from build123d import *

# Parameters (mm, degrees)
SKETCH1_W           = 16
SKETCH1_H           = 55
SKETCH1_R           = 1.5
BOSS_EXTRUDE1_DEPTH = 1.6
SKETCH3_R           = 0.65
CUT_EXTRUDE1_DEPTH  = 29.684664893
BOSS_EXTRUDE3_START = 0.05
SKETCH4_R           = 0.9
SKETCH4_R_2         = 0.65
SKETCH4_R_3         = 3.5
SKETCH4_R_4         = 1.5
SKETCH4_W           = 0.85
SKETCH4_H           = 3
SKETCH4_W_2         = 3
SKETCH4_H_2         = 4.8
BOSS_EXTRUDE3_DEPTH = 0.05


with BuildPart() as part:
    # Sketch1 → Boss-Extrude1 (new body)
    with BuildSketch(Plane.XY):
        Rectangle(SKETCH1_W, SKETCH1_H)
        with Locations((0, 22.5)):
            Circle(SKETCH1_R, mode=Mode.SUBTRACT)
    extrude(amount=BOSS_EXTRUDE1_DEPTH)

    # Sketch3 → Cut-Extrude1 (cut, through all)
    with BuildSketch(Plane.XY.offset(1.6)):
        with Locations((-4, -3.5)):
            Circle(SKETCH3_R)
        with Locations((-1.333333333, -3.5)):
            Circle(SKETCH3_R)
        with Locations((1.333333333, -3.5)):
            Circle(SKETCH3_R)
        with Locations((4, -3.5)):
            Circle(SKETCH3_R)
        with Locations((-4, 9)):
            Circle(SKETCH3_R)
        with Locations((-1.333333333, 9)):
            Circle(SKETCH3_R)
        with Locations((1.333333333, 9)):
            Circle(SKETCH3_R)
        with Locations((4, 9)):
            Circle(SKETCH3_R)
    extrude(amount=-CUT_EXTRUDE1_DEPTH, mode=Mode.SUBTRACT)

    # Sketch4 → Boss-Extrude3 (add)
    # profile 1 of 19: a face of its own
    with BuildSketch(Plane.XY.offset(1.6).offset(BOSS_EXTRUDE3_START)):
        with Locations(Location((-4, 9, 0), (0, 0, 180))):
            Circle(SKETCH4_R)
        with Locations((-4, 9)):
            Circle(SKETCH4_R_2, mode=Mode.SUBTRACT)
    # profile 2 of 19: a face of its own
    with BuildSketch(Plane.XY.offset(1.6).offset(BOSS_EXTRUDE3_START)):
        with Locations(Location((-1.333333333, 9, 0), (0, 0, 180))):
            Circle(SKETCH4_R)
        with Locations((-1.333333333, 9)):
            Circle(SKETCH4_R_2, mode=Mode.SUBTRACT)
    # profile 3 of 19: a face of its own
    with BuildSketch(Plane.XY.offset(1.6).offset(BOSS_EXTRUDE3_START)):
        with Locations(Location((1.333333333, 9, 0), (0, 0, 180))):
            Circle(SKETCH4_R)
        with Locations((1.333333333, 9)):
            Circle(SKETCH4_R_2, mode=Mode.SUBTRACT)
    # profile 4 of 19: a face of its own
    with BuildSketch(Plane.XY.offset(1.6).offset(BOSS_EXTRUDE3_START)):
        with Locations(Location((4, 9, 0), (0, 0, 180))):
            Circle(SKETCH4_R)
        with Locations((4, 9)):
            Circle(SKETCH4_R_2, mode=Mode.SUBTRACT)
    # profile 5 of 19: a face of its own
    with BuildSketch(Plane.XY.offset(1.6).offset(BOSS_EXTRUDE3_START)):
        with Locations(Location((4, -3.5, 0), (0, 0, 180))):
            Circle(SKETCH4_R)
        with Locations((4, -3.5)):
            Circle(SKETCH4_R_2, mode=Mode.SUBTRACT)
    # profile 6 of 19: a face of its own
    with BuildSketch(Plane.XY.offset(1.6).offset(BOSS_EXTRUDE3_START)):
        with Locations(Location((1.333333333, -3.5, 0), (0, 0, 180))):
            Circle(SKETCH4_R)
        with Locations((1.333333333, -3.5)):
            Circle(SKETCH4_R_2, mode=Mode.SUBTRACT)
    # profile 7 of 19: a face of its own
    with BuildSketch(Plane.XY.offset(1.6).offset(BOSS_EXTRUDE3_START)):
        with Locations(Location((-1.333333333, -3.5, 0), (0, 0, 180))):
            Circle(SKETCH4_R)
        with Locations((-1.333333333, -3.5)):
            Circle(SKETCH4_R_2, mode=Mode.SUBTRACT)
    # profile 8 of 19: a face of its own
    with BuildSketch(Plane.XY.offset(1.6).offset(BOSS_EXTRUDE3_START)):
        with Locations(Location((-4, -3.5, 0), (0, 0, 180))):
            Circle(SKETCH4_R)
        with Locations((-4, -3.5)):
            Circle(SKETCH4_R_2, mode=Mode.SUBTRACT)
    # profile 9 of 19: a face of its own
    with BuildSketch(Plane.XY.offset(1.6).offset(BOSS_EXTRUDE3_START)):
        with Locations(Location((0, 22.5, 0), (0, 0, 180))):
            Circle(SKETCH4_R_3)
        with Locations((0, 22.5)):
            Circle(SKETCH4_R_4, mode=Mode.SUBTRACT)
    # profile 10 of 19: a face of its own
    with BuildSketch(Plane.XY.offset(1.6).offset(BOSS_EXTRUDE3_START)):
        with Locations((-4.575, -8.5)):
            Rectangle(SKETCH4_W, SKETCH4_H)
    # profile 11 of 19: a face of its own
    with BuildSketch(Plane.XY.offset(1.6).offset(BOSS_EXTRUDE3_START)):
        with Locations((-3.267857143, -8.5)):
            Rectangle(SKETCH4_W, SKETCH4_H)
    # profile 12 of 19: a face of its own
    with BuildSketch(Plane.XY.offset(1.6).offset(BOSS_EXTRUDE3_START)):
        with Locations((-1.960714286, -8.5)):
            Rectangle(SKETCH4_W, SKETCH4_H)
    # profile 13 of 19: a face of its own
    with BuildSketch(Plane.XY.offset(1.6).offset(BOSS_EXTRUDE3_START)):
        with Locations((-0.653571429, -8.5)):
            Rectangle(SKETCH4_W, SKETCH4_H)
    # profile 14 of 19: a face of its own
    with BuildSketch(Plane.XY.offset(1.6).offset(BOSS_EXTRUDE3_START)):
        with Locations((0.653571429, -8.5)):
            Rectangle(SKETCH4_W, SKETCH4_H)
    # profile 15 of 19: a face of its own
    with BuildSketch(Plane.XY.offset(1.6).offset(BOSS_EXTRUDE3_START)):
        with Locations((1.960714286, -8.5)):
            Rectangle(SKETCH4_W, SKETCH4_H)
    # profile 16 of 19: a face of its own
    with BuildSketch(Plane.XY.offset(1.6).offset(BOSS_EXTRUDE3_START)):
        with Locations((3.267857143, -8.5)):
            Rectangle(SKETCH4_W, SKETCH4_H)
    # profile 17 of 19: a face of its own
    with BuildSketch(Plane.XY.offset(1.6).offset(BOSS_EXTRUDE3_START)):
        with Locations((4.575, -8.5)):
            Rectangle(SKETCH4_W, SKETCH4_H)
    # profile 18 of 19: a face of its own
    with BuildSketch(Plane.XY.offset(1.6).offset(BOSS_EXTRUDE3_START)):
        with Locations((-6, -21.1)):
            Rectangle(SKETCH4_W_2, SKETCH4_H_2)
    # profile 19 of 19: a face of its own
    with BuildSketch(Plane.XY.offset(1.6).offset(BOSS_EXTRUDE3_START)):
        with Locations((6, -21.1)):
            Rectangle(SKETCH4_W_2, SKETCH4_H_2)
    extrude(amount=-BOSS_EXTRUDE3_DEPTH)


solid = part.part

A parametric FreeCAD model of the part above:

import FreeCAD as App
import Part
import Sketcher
from FreeCAD import Vector
Q = App.Units.Quantity


def add_polygon(sketch, points):
    """Adds a closed chain of lines whose ends are joined by coincident constraints."""
    first, n = sketch.GeometryCount, len(points)
    for a, b in zip(points, points[1:] + points[:1]):
        sketch.addGeometry(Part.LineSegment(App.Vector(*a, 0), App.Vector(*b, 0)), False)
    for i in range(n):
        sketch.addConstraint(Sketcher.Constraint("Coincident", first + i, 2, first + (i + 1) % n, 1))

doc = App.newDocument("Part")
body = doc.addObject("PartDesign::Body", "Body")

# Sketch on XY plane
sketch1 = body.newObject("Sketcher::SketchObject", "Sketch")
sketch1.AttachmentSupport = (doc.getObject("XY_Plane"), [""])
sketch1.MapMode = "FlatFace"
add_polygon(sketch1, [(-8, 27.5), (-8, -27.5), (8, -27.5), (8, 27.5)])  # lines 0-3
sketch1.addGeometry(Part.Circle(Vector(0, 22.5, 0), Vector(0, 0, 1), 1.5), False)  # 4
sketch1.addConstraint([
    Sketcher.Constraint("Vertical", 0),
    Sketcher.Constraint("Horizontal", 1),
    Sketcher.Constraint("Vertical", 2),
    Sketcher.Constraint("Horizontal", 3),
    Sketcher.Constraint("Symmetric", 0, 2, 2, 2, -1, 1),
    Sketcher.Constraint("PointOnObject", 4, 3, -2),
    Sketcher.Constraint("Diameter", 4, Q("3 mm")),
    Sketcher.Constraint("DistanceX", 1, 1, 1, 2, Q("16 mm")),
    Sketcher.Constraint("DistanceY", 0, 2, 0, 1, Q("55 mm")),
    Sketcher.Constraint("DistanceY", 0, 2, 4, 3, Q("50 mm")),
])
pad1 = body.newObject("PartDesign::Pad", "Pad")
pad1.Profile = sketch1
pad1.Length = 1.6

# Sketch on XY plane
sketch2 = body.newObject("Sketcher::SketchObject", "Sketch001")
sketch2.AttachmentSupport = (doc.getObject("XY_Plane"), [""])
sketch2.MapMode = "FlatFace"
sketch2.AttachmentOffset = App.Placement(Vector(0, 0, 1.6), App.Rotation())
sketch2.addGeometry([
    Part.Circle(Vector(-4, -3.5, 0), Vector(0, 0, 1), 0.7),  # 0
    Part.Circle(Vector(-1.3, -3.5, 0), Vector(0, 0, 1), 0.7),  # 1
    Part.Circle(Vector(1.3, -3.5, 0), Vector(0, 0, 1), 0.7),  # 2
    Part.Circle(Vector(4, -3.5, 0), Vector(0, 0, 1), 0.7),  # 3
    Part.Circle(Vector(-4, 9, 0), Vector(0, 0, 1), 0.7),  # 4
    Part.Circle(Vector(-1.3, 9, 0), Vector(0, 0, 1), 0.7),  # 5
    Part.Circle(Vector(1.3, 9, 0), Vector(0, 0, 1), 0.7),  # 6
    Part.Circle(Vector(4, 9, 0), Vector(0, 0, 1), 0.7),  # 7
], False)
sketch2.addConstraint([
    Sketcher.Constraint("Equal", 0, 1),
    Sketcher.Constraint("Equal", 1, 2),
    Sketcher.Constraint("Equal", 2, 3),
    Sketcher.Constraint("Equal", 3, 4),
    Sketcher.Constraint("Equal", 4, 5),
    Sketcher.Constraint("Equal", 5, 6),
    Sketcher.Constraint("Equal", 6, 7),
    Sketcher.Constraint("Symmetric", 1, 3, 2, 3, -2),
    Sketcher.Constraint("Symmetric", 0, 3, 3, 3, -2),
    Sketcher.Constraint("Symmetric", 5, 3, 6, 3, -2),
    Sketcher.Constraint("Symmetric", 4, 3, 7, 3, -2),
    Sketcher.Constraint("Horizontal", 0, 3, 1, 3),
    Sketcher.Constraint("Horizontal", 4, 3, 5, 3),
    Sketcher.Constraint("Vertical", 0, 3, 4, 3),
    Sketcher.Constraint("Vertical", 1, 3, 5, 3),
    Sketcher.Constraint("Diameter", 0, Q("1.3 mm")),
    Sketcher.Constraint("DistanceX", 0, 3, -1, 1, Q("4 mm")),
    Sketcher.Constraint("DistanceY", -1, 1, 4, 3, Q("9 mm")),
    Sketcher.Constraint("DistanceY", 0, 3, -1, 1, Q("3.5 mm")),
    Sketcher.Constraint("DistanceX", 1, 3, -1, 1, Q("1.333333 mm")),
])
pocket1 = body.newObject("PartDesign::Pocket", "Pocket")
pocket1.Profile = sketch2
pocket1.Type = "ThroughAll"

# Sketch on XY plane
sketch3 = body.newObject("Sketcher::SketchObject", "Sketch002")
sketch3.AttachmentSupport = (doc.getObject("XY_Plane"), [""])
sketch3.MapMode = "FlatFace"
sketch3.AttachmentOffset = App.Placement(Vector(0, 0, 1.65), App.Rotation())
sketch3.addGeometry(Part.Circle(Vector(-4, 9, 0), Vector(0, 0, 1), 0.9), False)  # 0
sketch3.addGeometry(Part.Circle(Vector(-4, 9, 0), Vector(0, 0, 1), 0.7), False)  # 1
sketch3.addGeometry(Part.Circle(Vector(-1.3, 9, 0), Vector(0, 0, 1), 0.9), False)  # 2
sketch3.addGeometry(Part.Circle(Vector(-1.3, 9, 0), Vector(0, 0, 1), 0.7), False)  # 3
sketch3.addGeometry(Part.Circle(Vector(1.3, 9, 0), Vector(0, 0, 1), 0.9), False)  # 4
sketch3.addGeometry(Part.Circle(Vector(1.3, 9, 0), Vector(0, 0, 1), 0.7), False)  # 5
sketch3.addGeometry(Part.Circle(Vector(4, 9, 0), Vector(0, 0, 1), 0.9), False)  # 6
sketch3.addGeometry(Part.Circle(Vector(4, 9, 0), Vector(0, 0, 1), 0.7), False)  # 7
sketch3.addGeometry(Part.Circle(Vector(4, -3.5, 0), Vector(0, 0, 1), 0.9), False)  # 8
sketch3.addGeometry(Part.Circle(Vector(4, -3.5, 0), Vector(0, 0, 1), 0.7), False)  # 9
sketch3.addGeometry(Part.Circle(Vector(1.3, -3.5, 0), Vector(0, 0, 1), 0.9), False)  # 10
sketch3.addGeometry(Part.Circle(Vector(1.3, -3.5, 0), Vector(0, 0, 1), 0.7), False)  # 11
sketch3.addGeometry(Part.Circle(Vector(-1.3, -3.5, 0), Vector(0, 0, 1), 0.9), False)  # 12
sketch3.addGeometry(Part.Circle(Vector(-1.3, -3.5, 0), Vector(0, 0, 1), 0.7), False)  # 13
sketch3.addGeometry(Part.Circle(Vector(-4, -3.5, 0), Vector(0, 0, 1), 0.9), False)  # 14
sketch3.addGeometry(Part.Circle(Vector(-4, -3.5, 0), Vector(0, 0, 1), 0.7), False)  # 15
sketch3.addGeometry(Part.Circle(Vector(0, 22.5, 0), Vector(0, 0, 1), 3.5), False)  # 16
sketch3.addGeometry(Part.Circle(Vector(0, 22.5, 0), Vector(0, 0, 1), 1.5), False)  # 17
add_polygon(sketch3, [(-5, -7), (-5, -10), (-4.2, -10), (-4.2, -7)])  # lines 18-21
add_polygon(sketch3, [(-3.7, -7), (-3.7, -10), (-2.8, -10), (-2.8, -7)])  # lines 22-25
add_polygon(sketch3, [(-2.4, -7), (-2.4, -10), (-1.5, -10), (-1.5, -7)])  # lines 26-29
add_polygon(sketch3, [(-1.1, -7), (-1.1, -10), (-0.2, -10), (-0.2, -7)])  # lines 30-33
add_polygon(sketch3, [(0.2, -7), (0.2, -10), (1.1, -10), (1.1, -7)])  # lines 34-37
add_polygon(sketch3, [(1.5, -7), (1.5, -10), (2.4, -10), (2.4, -7)])  # lines 38-41
add_polygon(sketch3, [(2.8, -7), (2.8, -10), (3.7, -10), (3.7, -7)])  # lines 42-45
add_polygon(sketch3, [(4.2, -7), (4.2, -10), (5, -10), (5, -7)])  # lines 46-49
add_polygon(sketch3, [(-7.5, -18.7), (-7.5, -23.5), (-4.5, -23.5), (-4.5, -18.7)])  # lines 50-53
add_polygon(sketch3, [(4.5, -18.7), (4.5, -23.5), (7.5, -23.5), (7.5, -18.7)])  # lines 54-57
sketch3.addConstraint([
    Sketcher.Constraint("Vertical", 18),
    Sketcher.Constraint("Horizontal", 19),
    Sketcher.Constraint("Vertical", 20),
    Sketcher.Constraint("Horizontal", 21),
    Sketcher.Constraint("Vertical", 22),
    Sketcher.Constraint("Horizontal", 23),
    Sketcher.Constraint("Vertical", 24),
    Sketcher.Constraint("Horizontal", 25),
    Sketcher.Constraint("Vertical", 26),
    Sketcher.Constraint("Horizontal", 27),
    Sketcher.Constraint("Vertical", 28),
    Sketcher.Constraint("Horizontal", 29),
    Sketcher.Constraint("Vertical", 30),
    Sketcher.Constraint("Horizontal", 31),
    Sketcher.Constraint("Vertical", 32),
    Sketcher.Constraint("Horizontal", 33),
    Sketcher.Constraint("Vertical", 34),
    Sketcher.Constraint("Horizontal", 35),
    Sketcher.Constraint("Vertical", 36),
    Sketcher.Constraint("Horizontal", 37),
    Sketcher.Constraint("Vertical", 38),
    Sketcher.Constraint("Horizontal", 39),
    Sketcher.Constraint("Vertical", 40),
    Sketcher.Constraint("Horizontal", 41),
    Sketcher.Constraint("Vertical", 42),
    Sketcher.Constraint("Horizontal", 43),
    Sketcher.Constraint("Vertical", 44),
    Sketcher.Constraint("Horizontal", 45),
    Sketcher.Constraint("Vertical", 46),
    Sketcher.Constraint("Horizontal", 47),
    Sketcher.Constraint("Vertical", 48),
    Sketcher.Constraint("Horizontal", 49),
    Sketcher.Constraint("Vertical", 50),
    Sketcher.Constraint("Horizontal", 51),
    Sketcher.Constraint("Vertical", 52),
    Sketcher.Constraint("Horizontal", 53),
    Sketcher.Constraint("Vertical", 54),
    Sketcher.Constraint("Horizontal", 55),
    Sketcher.Constraint("Vertical", 56),
    Sketcher.Constraint("Horizontal", 57),
    Sketcher.Constraint("Coincident", 1, 3, 0, 3),
    Sketcher.Constraint("Coincident", 3, 3, 2, 3),
    Sketcher.Constraint("Coincident", 5, 3, 4, 3),
    Sketcher.Constraint("Coincident", 7, 3, 6, 3),
    Sketcher.Constraint("Coincident", 9, 3, 8, 3),
    Sketcher.Constraint("Coincident", 11, 3, 10, 3),
    Sketcher.Constraint("Coincident", 13, 3, 12, 3),
    Sketcher.Constraint("Coincident", 15, 3, 14, 3),
    Sketcher.Constraint("Coincident", 17, 3, 16, 3),
    Sketcher.Constraint("Equal", 0, 2),
    Sketcher.Constraint("Equal", 1, 3),
    Sketcher.Constraint("Equal", 2, 4),
    Sketcher.Constraint("Equal", 3, 5),
    Sketcher.Constraint("Equal", 4, 6),
    Sketcher.Constraint("Equal", 5, 7),
    Sketcher.Constraint("Equal", 6, 8),
    Sketcher.Constraint("Equal", 7, 9),
    Sketcher.Constraint("Equal", 8, 10),
    Sketcher.Constraint("Equal", 9, 11),
    Sketcher.Constraint("Equal", 10, 12),
    Sketcher.Constraint("Equal", 11, 13),
    Sketcher.Constraint("Equal", 12, 14),
    Sketcher.Constraint("Equal", 13, 15),
    Sketcher.Constraint("Symmetric", 2, 3, 4, 3, -2),
    Sketcher.Constraint("Symmetric", 0, 3, 6, 3, -2),
    Sketcher.Constraint("Symmetric", 10, 3, 12, 3, -2),
    Sketcher.Constraint("Symmetric", 8, 3, 14, 3, -2),
    Sketcher.Constraint("Symmetric", 31, 2, 34, 2, -2),
    Sketcher.Constraint("Symmetric", 33, 2, 36, 2, -2),
    Sketcher.Constraint("Symmetric", 27, 2, 38, 2, -2),
    Sketcher.Constraint("Symmetric", 29, 2, 40, 2, -2),
    Sketcher.Constraint("Symmetric", 23, 2, 42, 2, -2),
    Sketcher.Constraint("Symmetric", 25, 2, 44, 2, -2),
    Sketcher.Constraint("Symmetric", 19, 2, 46, 2, -2),
    Sketcher.Constraint("Symmetric", 21, 2, 48, 2, -2),
    Sketcher.Constraint("Symmetric", 51, 2, 54, 2, -2),
    Sketcher.Constraint("Symmetric", 53, 2, 56, 2, -2),
    Sketcher.Constraint("PointOnObject", 16, 3, -2),
    Sketcher.Constraint("Horizontal", 1, 3, 2, 3),
    Sketcher.Constraint("Horizontal", 9, 3, 10, 3),
    Sketcher.Constraint("Horizontal", 19, 2, 22, 2),
    Sketcher.Constraint("Horizontal", 21, 2, 24, 2),
    Sketcher.Constraint("Horizontal", 23, 2, 26, 2),
    Sketcher.Constraint("Horizontal", 25, 2, 28, 2),
    Sketcher.Constraint("Horizontal", 27, 2, 30, 2),
    Sketcher.Constraint("Horizontal", 29, 2, 32, 2),
    Sketcher.Constraint("Vertical", 7, 3, 8, 3),
    Sketcher.Constraint("Vertical", 5, 3, 10, 3),
    Sketcher.Constraint("Equal", 21, 23),
    Sketcher.Constraint("Equal", 25, 27),
    Sketcher.Constraint("Equal", 29, 31),
    Sketcher.Constraint("Equal", 57, 18),
    Sketcher.Constraint("Diameter", 16, Q("7 mm")),
    Sketcher.Constraint("Diameter", 17, Q("3 mm")),
    Sketcher.Constraint("Diameter", 0, Q("1.8 mm")),
    Sketcher.Constraint("Diameter", 1, Q("1.3 mm")),
    Sketcher.Constraint("DistanceX", 51, 1, 51, 2, Q("3 mm")),
    Sketcher.Constraint("DistanceY", 50, 2, 50, 1, Q("4.8 mm")),
    Sketcher.Constraint("DistanceX", 0, 3, -1, 1, Q("4 mm")),
    Sketcher.Constraint("DistanceY", -1, 1, 0, 3, Q("9 mm")),
    Sketcher.Constraint("DistanceX", 18, 2, -1, 1, Q("5 mm")),
    Sketcher.Constraint("DistanceY", 18, 2, -1, 1, Q("10 mm")),
    Sketcher.Constraint("DistanceX", 51, 2, 54, 2, Q("9 mm")),
    Sketcher.Constraint("DistanceX", 19, 1, 19, 2, Q("0.85 mm")),
    Sketcher.Constraint("DistanceY", 8, 3, -1, 1, Q("3.5 mm")),
    Sketcher.Constraint("DistanceY", -1, 1, 16, 3, Q("22.5 mm")),
    Sketcher.Constraint("DistanceY", 50, 2, -1, 1, Q("23.5 mm")),
    Sketcher.Constraint("DistanceX", 30, 2, -1, 1, Q("1.078571 mm")),
    Sketcher.Constraint("DistanceX", 2, 3, -1, 1, Q("1.333333 mm")),
    Sketcher.Constraint("DistanceX", 22, 2, -1, 1, Q("3.692857 mm")),
    Sketcher.Constraint("DistanceX", 26, 2, -1, 1, Q("2.385714 mm")),
])
pad2 = body.newObject("PartDesign::Pad", "Pad001")
pad2.Profile = sketch3
pad2.Length = 0.05
pad2.Reversed = True

doc.recompute()
